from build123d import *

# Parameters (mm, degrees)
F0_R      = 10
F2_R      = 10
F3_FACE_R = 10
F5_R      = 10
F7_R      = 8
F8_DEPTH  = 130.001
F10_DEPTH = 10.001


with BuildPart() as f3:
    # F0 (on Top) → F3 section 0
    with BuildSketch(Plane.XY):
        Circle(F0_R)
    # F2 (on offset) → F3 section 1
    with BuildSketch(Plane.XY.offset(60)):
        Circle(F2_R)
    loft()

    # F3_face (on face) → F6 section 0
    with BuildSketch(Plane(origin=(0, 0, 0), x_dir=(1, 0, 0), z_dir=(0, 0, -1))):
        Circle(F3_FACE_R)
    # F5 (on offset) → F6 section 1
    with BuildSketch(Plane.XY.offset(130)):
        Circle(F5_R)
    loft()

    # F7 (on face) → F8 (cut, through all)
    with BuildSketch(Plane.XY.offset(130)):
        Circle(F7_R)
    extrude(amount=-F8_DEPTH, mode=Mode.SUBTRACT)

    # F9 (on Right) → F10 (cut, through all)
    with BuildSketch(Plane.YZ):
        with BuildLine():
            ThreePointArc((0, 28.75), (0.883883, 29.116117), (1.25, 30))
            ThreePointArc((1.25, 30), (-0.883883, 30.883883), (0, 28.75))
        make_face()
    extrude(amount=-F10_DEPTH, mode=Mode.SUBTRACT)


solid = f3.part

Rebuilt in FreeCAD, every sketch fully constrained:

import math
import FreeCAD as App
import Part
import Sketcher

V = App.Vector

doc = App.newDocument("Part")
body = doc.addObject("PartDesign::Body", "Body")

# Sketch on XY plane
sketch1 = doc.addObject("Sketcher::SketchObject", "Sketch")
body.addObject(sketch1)
sketch1.AttachmentSupport = (doc.XY_Plane, [""])
sketch1.MapMode = "FlatFace"
sketch1.addGeometry(Part.Circle(V(0, 0, 0), V(0, 0, 1), 10), False)
sketch1.addConstraint(Sketcher.Constraint("Coincident", 0, 3, -1, 1))
sketch1.addConstraint(Sketcher.Constraint("Diameter", 0, 20.0))

# Sketch on XY plane
sketch2 = doc.addObject("Sketcher::SketchObject", "Sketch001")
body.addObject(sketch2)
sketch2.AttachmentSupport = (doc.XY_Plane, [""])
sketch2.MapMode = "FlatFace"
sketch2.AttachmentOffset = App.Placement(V(0, 0, 60), App.Rotation())
sketch2.addGeometry(Part.Circle(V(0, 0, 0), V(0, 0, 1), 10), False)
sketch2.addConstraint(Sketcher.Constraint("Coincident", 0, 3, -1, 1))
sketch2.addConstraint(Sketcher.Constraint("Diameter", 0, 20.0))

additiveloft = doc.addObject("PartDesign::AdditiveLoft", "AdditiveLoft")
body.addObject(additiveloft)
additiveloft.Profile = sketch1
additiveloft.Sections = [sketch2]

# Sketch on XY plane
sketch3 = doc.addObject("Sketcher::SketchObject", "Sketch002")
body.addObject(sketch3)
sketch3.AttachmentSupport = (doc.XY_Plane, [""])
sketch3.MapMode = "FlatFace"
sketch3.addGeometry(Part.Circle(V(0, 0, 0), V(0, 0, 1), 10), False)
sketch3.addConstraint(Sketcher.Constraint("Coincident", 0, 3, -1, 1))
sketch3.addConstraint(Sketcher.Constraint("Diameter", 0, 20.0))

# Sketch on XY plane
sketch4 = doc.addObject("Sketcher::SketchObject", "Sketch003")
body.addObject(sketch4)
sketch4.AttachmentSupport = (doc.XY_Plane, [""])
sketch4.MapMode = "FlatFace"
sketch4.AttachmentOffset = App.Placement(V(0, 0, 130), App.Rotation())
sketch4.addGeometry(Part.Circle(V(0, 0, 0), V(0, 0, 1), 10), False)
sketch4.addConstraint(Sketcher.Constraint("Coincident", 0, 3, -1, 1))
sketch4.addConstraint(Sketcher.Constraint("Diameter", 0, 20.0))

additiveloft2 = doc.addObject("PartDesign::AdditiveLoft", "AdditiveLoft001")
body.addObject(additiveloft2)
additiveloft2.Profile = sketch3
additiveloft2.Sections = [sketch4]

# Sketch on XY plane
sketch5 = doc.addObject("Sketcher::SketchObject", "Sketch004")
body.addObject(sketch5)
sketch5.AttachmentSupport = (doc.XY_Plane, [""])
sketch5.MapMode = "FlatFace"
sketch5.AttachmentOffset = App.Placement(V(0, 0, 130), App.Rotation())
sketch5.addGeometry(Part.Circle(V(0, 0, 0), V(0, 0, 1), 8), False)
sketch5.addConstraint(Sketcher.Constraint("Coincident", 0, 3, -1, 1))
sketch5.addConstraint(Sketcher.Constraint("Diameter", 0, 16.0))
pocket1 = doc.addObject("PartDesign::Pocket", "Pocket")
body.addObject(pocket1)
pocket1.Profile = sketch5
pocket1.Type = "ThroughAll"

# Sketch on YZ plane
sketch6 = doc.addObject("Sketcher::SketchObject", "Sketch005")
body.addObject(sketch6)
sketch6.AttachmentSupport = (doc.YZ_Plane, [""])
sketch6.MapMode = "FlatFace"
sketch6.addGeometry(Part.ArcOfCircle(Part.Circle(V(0, 30, 0), V(0, 0, 1), 1.3), math.radians(-90), math.radians(0)), False)
sketch6.addGeometry(Part.ArcOfCircle(Part.Circle(V(0, 30, 0), V(0, 0, 1), 1.2), math.radians(0), math.radians(270)), False)
sketch6.addConstraint(Sketcher.Constraint("Tangent", 0, 1, 1, 2))
sketch6.addConstraint(Sketcher.Constraint("Coincident", 1, 1, 0, 2))
sketch6.addConstraint(Sketcher.Constraint("PointOnObject", 0, 3, -2))
sketch6.addConstraint(Sketcher.Constraint("PointOnObject", 0, 1, -2))
sketch6.addConstraint(Sketcher.Constraint("Horizontal", 0, 3, 1, 1))
sketch6.addConstraint(Sketcher.Constraint("Radius", 0, 1.250002))
sketch6.addConstraint(Sketcher.Constraint("DistanceY", -1, 1, 0, 3, 30.000002))
pocket2 = doc.addObject("PartDesign::Pocket", "Pocket001")
body.addObject(pocket2)
pocket2.Profile = sketch6
pocket2.Type = "ThroughAll"

doc.recompute()
